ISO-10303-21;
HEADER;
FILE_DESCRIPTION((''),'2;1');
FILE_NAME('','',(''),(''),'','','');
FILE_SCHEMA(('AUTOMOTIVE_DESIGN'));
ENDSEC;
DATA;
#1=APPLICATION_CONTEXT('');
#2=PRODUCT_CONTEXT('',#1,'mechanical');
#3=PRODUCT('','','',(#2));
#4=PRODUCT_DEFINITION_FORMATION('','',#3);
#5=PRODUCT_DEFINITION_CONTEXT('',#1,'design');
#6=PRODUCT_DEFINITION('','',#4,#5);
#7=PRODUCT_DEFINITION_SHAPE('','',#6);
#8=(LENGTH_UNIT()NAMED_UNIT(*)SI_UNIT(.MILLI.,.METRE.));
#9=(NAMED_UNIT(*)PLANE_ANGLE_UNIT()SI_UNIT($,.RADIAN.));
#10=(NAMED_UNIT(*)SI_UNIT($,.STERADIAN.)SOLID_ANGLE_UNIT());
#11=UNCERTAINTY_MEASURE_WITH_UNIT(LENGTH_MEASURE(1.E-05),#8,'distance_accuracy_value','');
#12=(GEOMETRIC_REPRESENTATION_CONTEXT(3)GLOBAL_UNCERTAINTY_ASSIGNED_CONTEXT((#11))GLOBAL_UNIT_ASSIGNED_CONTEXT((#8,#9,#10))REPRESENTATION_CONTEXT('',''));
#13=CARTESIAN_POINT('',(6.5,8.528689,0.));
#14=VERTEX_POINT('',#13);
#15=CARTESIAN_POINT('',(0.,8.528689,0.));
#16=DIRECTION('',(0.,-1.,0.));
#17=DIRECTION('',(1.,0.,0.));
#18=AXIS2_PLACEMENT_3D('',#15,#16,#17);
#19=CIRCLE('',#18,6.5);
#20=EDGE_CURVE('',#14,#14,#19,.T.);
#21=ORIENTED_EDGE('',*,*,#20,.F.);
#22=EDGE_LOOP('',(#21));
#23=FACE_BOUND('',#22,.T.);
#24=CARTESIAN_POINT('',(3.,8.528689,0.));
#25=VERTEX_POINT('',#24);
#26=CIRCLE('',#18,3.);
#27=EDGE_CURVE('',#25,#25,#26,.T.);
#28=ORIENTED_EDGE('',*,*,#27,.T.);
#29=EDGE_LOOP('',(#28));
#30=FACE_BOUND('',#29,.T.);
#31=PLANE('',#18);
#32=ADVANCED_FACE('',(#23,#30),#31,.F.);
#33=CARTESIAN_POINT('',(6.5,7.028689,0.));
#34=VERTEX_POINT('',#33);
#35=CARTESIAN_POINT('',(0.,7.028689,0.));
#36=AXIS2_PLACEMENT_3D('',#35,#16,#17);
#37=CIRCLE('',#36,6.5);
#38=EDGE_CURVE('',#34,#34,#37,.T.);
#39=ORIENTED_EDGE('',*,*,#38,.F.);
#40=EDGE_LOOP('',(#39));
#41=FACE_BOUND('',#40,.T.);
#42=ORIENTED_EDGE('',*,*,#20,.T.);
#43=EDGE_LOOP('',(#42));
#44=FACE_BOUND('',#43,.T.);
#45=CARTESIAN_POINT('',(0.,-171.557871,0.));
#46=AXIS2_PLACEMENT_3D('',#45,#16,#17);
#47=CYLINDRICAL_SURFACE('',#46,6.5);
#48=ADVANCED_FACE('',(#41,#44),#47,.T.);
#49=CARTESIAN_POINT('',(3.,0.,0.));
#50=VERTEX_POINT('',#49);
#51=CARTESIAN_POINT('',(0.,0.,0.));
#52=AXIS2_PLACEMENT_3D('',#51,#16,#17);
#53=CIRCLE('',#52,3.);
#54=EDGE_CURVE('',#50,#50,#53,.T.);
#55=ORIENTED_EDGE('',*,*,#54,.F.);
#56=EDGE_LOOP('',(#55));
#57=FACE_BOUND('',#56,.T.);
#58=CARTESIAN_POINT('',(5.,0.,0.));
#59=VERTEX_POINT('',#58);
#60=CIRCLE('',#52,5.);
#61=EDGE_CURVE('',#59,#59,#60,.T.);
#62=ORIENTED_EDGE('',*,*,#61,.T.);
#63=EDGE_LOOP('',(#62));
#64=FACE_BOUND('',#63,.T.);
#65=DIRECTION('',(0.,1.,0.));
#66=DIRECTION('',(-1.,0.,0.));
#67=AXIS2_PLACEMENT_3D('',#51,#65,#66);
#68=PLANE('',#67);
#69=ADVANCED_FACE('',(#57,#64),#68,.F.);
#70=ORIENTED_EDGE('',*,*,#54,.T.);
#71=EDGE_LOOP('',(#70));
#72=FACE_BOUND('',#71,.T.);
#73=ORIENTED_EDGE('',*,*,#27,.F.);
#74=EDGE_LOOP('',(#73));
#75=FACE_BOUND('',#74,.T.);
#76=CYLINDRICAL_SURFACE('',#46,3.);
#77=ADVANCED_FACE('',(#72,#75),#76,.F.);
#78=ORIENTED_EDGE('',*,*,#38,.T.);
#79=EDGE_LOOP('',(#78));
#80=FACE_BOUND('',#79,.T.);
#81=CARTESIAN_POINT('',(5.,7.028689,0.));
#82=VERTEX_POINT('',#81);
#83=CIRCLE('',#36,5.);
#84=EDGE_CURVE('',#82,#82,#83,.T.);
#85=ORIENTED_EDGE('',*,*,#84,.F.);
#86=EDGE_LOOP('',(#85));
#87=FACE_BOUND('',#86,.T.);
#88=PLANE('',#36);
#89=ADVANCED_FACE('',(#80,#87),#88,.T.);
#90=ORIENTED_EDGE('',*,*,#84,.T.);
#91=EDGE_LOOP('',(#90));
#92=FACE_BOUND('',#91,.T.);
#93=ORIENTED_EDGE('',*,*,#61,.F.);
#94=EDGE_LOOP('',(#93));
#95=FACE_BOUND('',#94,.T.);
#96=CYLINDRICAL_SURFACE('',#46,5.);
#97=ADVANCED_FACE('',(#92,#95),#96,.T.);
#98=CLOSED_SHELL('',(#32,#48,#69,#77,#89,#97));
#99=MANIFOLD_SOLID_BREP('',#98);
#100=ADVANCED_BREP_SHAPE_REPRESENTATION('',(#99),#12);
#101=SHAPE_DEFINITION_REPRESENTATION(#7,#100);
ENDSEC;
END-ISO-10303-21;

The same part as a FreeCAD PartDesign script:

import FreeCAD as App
import Part
import Sketcher

V = App.Vector

doc = App.newDocument("Part")
params = doc.addObject("Spreadsheet::Sheet", "Params")
for row, (alias, value) in enumerate([
    ("sketch1_width", "2 mm"),
    ("sketch1_width2", "3.5 mm"),
    ("revolution_angle", "360 deg"),
], start=1):
    params.set(f"A{row}", alias)
    params.set(f"B{row}", "=" + value)
    params.setAlias(f"B{row}", alias)

body = doc.addObject("PartDesign::Body", "Body")

sketch1 = body.newObject("Sketcher::SketchObject", "Sketch")
sketch1.AttachmentSupport = (doc.getObject("XY_Plane"), [""])
sketch1.MapMode = "FlatFace"
sketch1.addGeometry(Part.LineSegment(V(6.5, 8.528689, 0), V(3, 8.528689, 0)), False)
sketch1.addGeometry(Part.LineSegment(V(3, 8.528689, 0), V(3, 0, 0)), False)
sketch1.addGeometry(Part.LineSegment(V(3, 0, 0), V(5, 0, 0)), False)
sketch1.addGeometry(Part.LineSegment(V(5, 0, 0), V(5, 7.028689, 0)), False)
sketch1.addGeometry(Part.LineSegment(V(5, 7.028689, 0), V(6.5, 7.028689, 0)), False)
sketch1.addGeometry(Part.LineSegment(V(6.5, 7.028689, 0), V(6.5, 8.528689, 0)), False)
sketch1.addConstraint(Sketcher.Constraint("Coincident", 0, 2, 1, 1))
sketch1.addConstraint(Sketcher.Constraint("Coincident", 1, 2, 2, 1))
sketch1.addConstraint(Sketcher.Constraint("Coincident", 2, 2, 3, 1))
sketch1.addConstraint(Sketcher.Constraint("Coincident", 3, 2, 4, 1))
sketch1.addConstraint(Sketcher.Constraint("Coincident", 4, 2, 5, 1))
sketch1.addConstraint(Sketcher.Constraint("Coincident", 5, 2, 0, 1))
sketch1.addConstraint(Sketcher.Constraint("Horizontal", 0))
sketch1.addConstraint(Sketcher.Constraint("Vertical", 1))
sketch1.addConstraint(Sketcher.Constraint("Horizontal", 2))
sketch1.addConstraint(Sketcher.Constraint("Vertical", 3))
sketch1.addConstraint(Sketcher.Constraint("Horizontal", 4))
sketch1.addConstraint(Sketcher.Constraint("Vertical", 5))
sketch1.addConstraint(Sketcher.Constraint("PointOnObject", 1, 2, -1))
sketch1.addConstraint(Sketcher.Constraint("Equal", 4, 5))
sketch1.addConstraint(Sketcher.Constraint("DistanceX", 2, 1, 2, 2, 2.0))
sketch1.addConstraint(Sketcher.Constraint("DistanceX", 0, 2, 0, 1, 3.5))
sketch1.addConstraint(Sketcher.Constraint("DistanceX", -1, 1, 0, 2, 3.0))
sketch1.addConstraint(Sketcher.Constraint("DistanceY", 1, 2, 1, 1, 8.528689))
sketch1.setExpression("Constraints[14]", "Params.sketch1_width")
sketch1.setExpression("Constraints[15]", "Params.sketch1_width2")
revolution = body.newObject("PartDesign::Revolution", "Revolution")
revolution.Profile = sketch1
revolution.ReferenceAxis = (sketch1, ["V_Axis"])
revolution.setExpression("Angle", "Params.revolution_angle")

doc.recompute()
